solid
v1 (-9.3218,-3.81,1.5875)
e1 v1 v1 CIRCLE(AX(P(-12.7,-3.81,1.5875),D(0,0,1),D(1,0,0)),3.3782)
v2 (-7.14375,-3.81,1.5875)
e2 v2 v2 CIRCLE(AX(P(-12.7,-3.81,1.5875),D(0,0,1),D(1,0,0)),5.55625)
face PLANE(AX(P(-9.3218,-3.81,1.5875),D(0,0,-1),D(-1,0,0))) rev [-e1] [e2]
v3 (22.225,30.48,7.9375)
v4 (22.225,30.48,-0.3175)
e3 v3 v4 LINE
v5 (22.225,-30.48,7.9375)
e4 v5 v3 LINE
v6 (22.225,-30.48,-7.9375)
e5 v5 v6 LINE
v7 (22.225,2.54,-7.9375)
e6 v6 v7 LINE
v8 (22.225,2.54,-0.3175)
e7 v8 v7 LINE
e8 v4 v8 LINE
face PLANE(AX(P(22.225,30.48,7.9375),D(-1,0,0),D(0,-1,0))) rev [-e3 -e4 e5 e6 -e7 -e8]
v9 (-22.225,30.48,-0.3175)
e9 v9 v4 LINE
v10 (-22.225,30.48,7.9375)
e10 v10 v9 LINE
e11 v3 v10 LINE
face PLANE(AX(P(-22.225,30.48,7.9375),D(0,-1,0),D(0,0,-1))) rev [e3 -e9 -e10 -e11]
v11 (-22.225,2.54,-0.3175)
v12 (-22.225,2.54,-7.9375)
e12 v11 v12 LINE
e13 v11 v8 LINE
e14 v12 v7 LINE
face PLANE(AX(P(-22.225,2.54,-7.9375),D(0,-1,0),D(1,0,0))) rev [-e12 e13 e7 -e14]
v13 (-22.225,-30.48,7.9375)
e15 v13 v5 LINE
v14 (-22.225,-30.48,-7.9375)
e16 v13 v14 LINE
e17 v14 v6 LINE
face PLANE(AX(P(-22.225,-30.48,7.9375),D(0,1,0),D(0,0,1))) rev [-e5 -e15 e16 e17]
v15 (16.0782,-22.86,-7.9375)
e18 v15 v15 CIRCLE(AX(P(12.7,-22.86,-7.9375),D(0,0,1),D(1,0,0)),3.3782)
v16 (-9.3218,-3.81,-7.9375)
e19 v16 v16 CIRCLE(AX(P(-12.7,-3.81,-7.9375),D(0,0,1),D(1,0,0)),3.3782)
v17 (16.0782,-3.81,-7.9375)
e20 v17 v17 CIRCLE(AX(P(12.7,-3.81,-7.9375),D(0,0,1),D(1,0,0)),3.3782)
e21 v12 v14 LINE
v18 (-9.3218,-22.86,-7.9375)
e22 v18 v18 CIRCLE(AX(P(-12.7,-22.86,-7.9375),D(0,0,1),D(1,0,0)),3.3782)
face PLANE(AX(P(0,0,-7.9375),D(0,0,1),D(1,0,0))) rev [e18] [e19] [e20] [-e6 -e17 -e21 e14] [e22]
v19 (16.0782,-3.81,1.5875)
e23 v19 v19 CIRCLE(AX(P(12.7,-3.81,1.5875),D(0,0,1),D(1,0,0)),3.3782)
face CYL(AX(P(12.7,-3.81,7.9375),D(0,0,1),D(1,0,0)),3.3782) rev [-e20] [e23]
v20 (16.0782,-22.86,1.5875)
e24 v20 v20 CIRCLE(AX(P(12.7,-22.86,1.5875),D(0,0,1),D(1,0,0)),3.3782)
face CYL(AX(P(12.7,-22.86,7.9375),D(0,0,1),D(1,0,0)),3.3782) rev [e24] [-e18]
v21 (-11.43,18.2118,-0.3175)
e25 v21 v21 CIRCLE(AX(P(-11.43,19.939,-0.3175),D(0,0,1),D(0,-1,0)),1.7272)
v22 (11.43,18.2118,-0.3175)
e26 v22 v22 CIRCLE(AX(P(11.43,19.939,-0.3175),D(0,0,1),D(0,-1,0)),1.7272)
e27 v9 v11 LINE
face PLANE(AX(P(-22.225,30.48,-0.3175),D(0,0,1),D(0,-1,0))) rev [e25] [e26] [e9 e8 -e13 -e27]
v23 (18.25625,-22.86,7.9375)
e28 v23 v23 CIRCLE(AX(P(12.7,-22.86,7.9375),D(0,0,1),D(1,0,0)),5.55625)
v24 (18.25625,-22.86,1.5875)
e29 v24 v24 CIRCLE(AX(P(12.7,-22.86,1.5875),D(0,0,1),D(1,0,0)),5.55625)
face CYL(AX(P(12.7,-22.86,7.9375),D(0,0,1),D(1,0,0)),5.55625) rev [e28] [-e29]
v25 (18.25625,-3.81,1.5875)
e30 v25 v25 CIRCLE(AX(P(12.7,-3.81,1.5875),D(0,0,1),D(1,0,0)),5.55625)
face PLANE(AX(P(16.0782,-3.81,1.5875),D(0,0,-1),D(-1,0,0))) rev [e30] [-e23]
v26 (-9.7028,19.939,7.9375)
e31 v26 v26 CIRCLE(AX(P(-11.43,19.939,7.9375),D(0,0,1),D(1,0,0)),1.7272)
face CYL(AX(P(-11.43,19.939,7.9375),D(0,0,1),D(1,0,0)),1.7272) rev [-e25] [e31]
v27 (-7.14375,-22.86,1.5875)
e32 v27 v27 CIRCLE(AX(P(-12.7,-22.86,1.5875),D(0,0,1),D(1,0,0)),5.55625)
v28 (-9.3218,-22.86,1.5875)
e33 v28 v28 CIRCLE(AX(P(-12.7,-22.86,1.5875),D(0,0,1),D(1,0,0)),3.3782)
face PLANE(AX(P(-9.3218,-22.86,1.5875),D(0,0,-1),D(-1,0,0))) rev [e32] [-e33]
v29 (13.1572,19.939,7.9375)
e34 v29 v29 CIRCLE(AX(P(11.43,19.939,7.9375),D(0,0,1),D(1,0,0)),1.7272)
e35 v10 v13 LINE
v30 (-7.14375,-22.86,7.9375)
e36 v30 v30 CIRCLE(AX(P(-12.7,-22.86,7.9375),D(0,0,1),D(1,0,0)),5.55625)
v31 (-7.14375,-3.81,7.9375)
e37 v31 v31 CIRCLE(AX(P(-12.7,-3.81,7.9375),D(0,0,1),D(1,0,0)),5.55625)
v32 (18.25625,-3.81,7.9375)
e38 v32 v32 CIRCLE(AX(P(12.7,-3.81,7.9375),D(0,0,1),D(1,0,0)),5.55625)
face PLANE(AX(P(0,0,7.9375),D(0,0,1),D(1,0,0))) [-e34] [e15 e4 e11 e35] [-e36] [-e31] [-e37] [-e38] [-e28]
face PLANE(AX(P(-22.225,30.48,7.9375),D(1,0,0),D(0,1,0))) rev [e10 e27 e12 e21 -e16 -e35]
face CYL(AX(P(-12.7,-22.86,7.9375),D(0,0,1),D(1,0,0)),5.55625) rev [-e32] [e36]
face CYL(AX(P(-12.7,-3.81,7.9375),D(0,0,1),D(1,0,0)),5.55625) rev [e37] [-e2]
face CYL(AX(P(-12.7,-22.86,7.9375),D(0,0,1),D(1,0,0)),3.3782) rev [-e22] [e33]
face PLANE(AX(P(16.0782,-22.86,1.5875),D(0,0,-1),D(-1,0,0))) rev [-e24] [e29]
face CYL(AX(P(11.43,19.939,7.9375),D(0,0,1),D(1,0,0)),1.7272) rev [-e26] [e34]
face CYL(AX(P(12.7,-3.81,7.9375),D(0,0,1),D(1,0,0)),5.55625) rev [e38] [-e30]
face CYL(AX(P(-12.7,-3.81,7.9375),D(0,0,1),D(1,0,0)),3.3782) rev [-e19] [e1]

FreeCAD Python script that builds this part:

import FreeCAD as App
import Part
import Sketcher
from FreeCAD import Vector
Q = App.Units.Quantity

doc = App.newDocument("Part")
body = doc.addObject("PartDesign::Body", "Body")

sketch1 = body.newObject("Sketcher::SketchObject", "Sketch")
sketch1.AttachmentSupport = (doc.getObject("XY_Plane"), [""])
sketch1.MapMode = "FlatFace"
sketch1.addGeometry([
    Part.LineSegment(Vector(-22, 30, 0), Vector(-22, -30, 0)),
    Part.LineSegment(Vector(-22, -30, 0), Vector(22, -30, 0)),
    Part.LineSegment(Vector(22, -30, 0), Vector(22, 30, 0)),
    Part.LineSegment(Vector(22, 30, 0), Vector(-22, 30, 0)),
], False)
sketch1.addConstraint([
    Sketcher.Constraint("Coincident", 0, 2, 1, 1),
    Sketcher.Constraint("Coincident", 1, 2, 2, 1),
    Sketcher.Constraint("Coincident", 2, 2, 3, 1),
    Sketcher.Constraint("Coincident", 3, 2, 0, 1),
    Sketcher.Constraint("Vertical", 0),
    Sketcher.Constraint("Horizontal", 1),
    Sketcher.Constraint("Vertical", 2),
    Sketcher.Constraint("Horizontal", 3),
    Sketcher.Constraint("Symmetric", 0, 2, 2, 2, -1, 1),
    Sketcher.Constraint("DistanceY", 0, 2, 0, 1, Q("2.4 in")),
    Sketcher.Constraint("DistanceX", 1, 1, 1, 2, Q("1.75 in")),
])
pad1 = body.newObject("PartDesign::Pad", "Pad")
pad1.Profile = sketch1
pad1.Length = Q("0.625 in")
pad1.Midplane = True

sketch2 = body.newObject("Sketcher::SketchObject", "Sketch001")
sketch2.AttachmentSupport = (doc.getObject("XY_Plane"), [""])
sketch2.MapMode = "FlatFace"
sketch2.AttachmentOffset = App.Placement(Vector(0, 0, 0.3125 * 25.4), App.Rotation())
sketch2.addGeometry([
    Part.Circle(Vector(-12.7, -3.8, 0), Vector(0, 0, 1), 3.4),
    Part.Circle(Vector(12.7, -3.8, 0), Vector(0, 0, 1), 3.4),
    Part.Circle(Vector(12.7, -22.9, 0), Vector(0, 0, 1), 3.4),
    Part.Circle(Vector(-12.7, -22.9, 0), Vector(0, 0, 1), 3.4),
], False)
sketch2.addConstraint([
    Sketcher.Constraint("Equal", 0, 1),
    Sketcher.Constraint("Equal", 1, 2),
    Sketcher.Constraint("Equal", 2, 3),
    Sketcher.Constraint("Symmetric", 0, 3, 1, 3, -2),
    Sketcher.Constraint("Symmetric", 2, 3, 3, 3, -2),
    Sketcher.Constraint("Vertical", 1, 3, 2, 3),
    Sketcher.Constraint("Diameter", 0, Q("0.266 in")),
    Sketcher.Constraint("DistanceX", 0, 3, 1, 3, Q("1 in")),
    Sketcher.Constraint("DistanceY", 2, 3, -1, 1, Q("0.9 in")),
    Sketcher.Constraint("DistanceY", 0, 3, -1, 1, Q("0.15 in")),
])
doc.recompute()
hole = body.newObject("PartDesign::Hole", "Hole")
hole.Profile = sketch2
hole.ThreadType = "None"
hole.Diameter = Q("0.266 in")
hole.DepthType = "ThroughAll"
hole.HoleCutType = "Counterbore"
hole.HoleCutDiameter = Q("0.4375 in")
hole.HoleCutDepth = Q("0.25 in")

sketch3 = body.newObject("Sketcher::SketchObject", "Sketch002")
sketch3.AttachmentSupport = (doc.getObject("YZ_Plane"), [""])
sketch3.MapMode = "FlatFace"
sketch3.AttachmentOffset = App.Placement(Vector(0, 0, 0.875 * 25.4), App.Rotation())
sketch3.addGeometry([
    Part.LineSegment(Vector(30, 0, 0), Vector(3, 0, 0)),
    Part.LineSegment(Vector(3, 0, 0), Vector(3, -8, 0)),
    Part.LineSegment(Vector(3, -8, 0), Vector(30, -8, 0)),
    Part.LineSegment(Vector(30, -8, 0), Vector(30, 0, 0)),
], False)
sketch3.addConstraint([
    Sketcher.Constraint("Coincident", 0, 2, 1, 1),
    Sketcher.Constraint("Coincident", 1, 2, 2, 1),
    Sketcher.Constraint("Coincident", 2, 2, 3, 1),
    Sketcher.Constraint("Coincident", 3, 2, 0, 1),
    Sketcher.Constraint("Horizontal", 0),
    Sketcher.Constraint("Vertical", 1),
    Sketcher.Constraint("Horizontal", 2),
    Sketcher.Constraint("Vertical", 3),
    Sketcher.Constraint("DistanceX", 0, 2, 0, 1, Q("1.1 in")),
    Sketcher.Constraint("DistanceY", 1, 2, 1, 1, Q("0.3 in")),
    Sketcher.Constraint("DistanceX", -1, 1, 0, 2, Q("0.1 in")),
    Sketcher.Constraint("DistanceY", 1, 2, -1, 1, Q("0.3125 in")),
])
pocket1 = body.newObject("PartDesign::Pocket", "Pocket")
pocket1.Profile = sketch3
pocket1.Type = "ThroughAll"

sketch4 = body.newObject("Sketcher::SketchObject", "Sketch003")
sketch4.AttachmentSupport = (doc.getObject("XY_Plane"), [""])
sketch4.MapMode = "FlatFace"
sketch4.AttachmentOffset = App.Placement(Vector(0, 0, 0.3125 * 25.4), App.Rotation())
sketch4.addGeometry([
    Part.Circle(Vector(-11.4, 19.9, 0), Vector(0, 0, 1), 1.7),
    Part.Circle(Vector(11.4, 19.9, 0), Vector(0, 0, 1), 1.7),
], False)
sketch4.addConstraint([
    Sketcher.Constraint("Equal", 0, 1),
    Sketcher.Constraint("Symmetric", 0, 3, 1, 3, -2),
    Sketcher.Constraint("Diameter", 0, Q("0.136 in")),
    Sketcher.Constraint("DistanceX", 0, 3, 1, 3, Q("0.9 in")),
    Sketcher.Constraint("DistanceY", -1, 1, 0, 3, Q("0.785 in")),
])
doc.recompute()
hole2 = body.newObject("PartDesign::Hole", "Hole001")
hole2.Profile = sketch4
hole2.ThreadType = "None"
hole2.Diameter = Q("0.136 in")
hole2.DepthType = "ThroughAll"

doc.recompute()
